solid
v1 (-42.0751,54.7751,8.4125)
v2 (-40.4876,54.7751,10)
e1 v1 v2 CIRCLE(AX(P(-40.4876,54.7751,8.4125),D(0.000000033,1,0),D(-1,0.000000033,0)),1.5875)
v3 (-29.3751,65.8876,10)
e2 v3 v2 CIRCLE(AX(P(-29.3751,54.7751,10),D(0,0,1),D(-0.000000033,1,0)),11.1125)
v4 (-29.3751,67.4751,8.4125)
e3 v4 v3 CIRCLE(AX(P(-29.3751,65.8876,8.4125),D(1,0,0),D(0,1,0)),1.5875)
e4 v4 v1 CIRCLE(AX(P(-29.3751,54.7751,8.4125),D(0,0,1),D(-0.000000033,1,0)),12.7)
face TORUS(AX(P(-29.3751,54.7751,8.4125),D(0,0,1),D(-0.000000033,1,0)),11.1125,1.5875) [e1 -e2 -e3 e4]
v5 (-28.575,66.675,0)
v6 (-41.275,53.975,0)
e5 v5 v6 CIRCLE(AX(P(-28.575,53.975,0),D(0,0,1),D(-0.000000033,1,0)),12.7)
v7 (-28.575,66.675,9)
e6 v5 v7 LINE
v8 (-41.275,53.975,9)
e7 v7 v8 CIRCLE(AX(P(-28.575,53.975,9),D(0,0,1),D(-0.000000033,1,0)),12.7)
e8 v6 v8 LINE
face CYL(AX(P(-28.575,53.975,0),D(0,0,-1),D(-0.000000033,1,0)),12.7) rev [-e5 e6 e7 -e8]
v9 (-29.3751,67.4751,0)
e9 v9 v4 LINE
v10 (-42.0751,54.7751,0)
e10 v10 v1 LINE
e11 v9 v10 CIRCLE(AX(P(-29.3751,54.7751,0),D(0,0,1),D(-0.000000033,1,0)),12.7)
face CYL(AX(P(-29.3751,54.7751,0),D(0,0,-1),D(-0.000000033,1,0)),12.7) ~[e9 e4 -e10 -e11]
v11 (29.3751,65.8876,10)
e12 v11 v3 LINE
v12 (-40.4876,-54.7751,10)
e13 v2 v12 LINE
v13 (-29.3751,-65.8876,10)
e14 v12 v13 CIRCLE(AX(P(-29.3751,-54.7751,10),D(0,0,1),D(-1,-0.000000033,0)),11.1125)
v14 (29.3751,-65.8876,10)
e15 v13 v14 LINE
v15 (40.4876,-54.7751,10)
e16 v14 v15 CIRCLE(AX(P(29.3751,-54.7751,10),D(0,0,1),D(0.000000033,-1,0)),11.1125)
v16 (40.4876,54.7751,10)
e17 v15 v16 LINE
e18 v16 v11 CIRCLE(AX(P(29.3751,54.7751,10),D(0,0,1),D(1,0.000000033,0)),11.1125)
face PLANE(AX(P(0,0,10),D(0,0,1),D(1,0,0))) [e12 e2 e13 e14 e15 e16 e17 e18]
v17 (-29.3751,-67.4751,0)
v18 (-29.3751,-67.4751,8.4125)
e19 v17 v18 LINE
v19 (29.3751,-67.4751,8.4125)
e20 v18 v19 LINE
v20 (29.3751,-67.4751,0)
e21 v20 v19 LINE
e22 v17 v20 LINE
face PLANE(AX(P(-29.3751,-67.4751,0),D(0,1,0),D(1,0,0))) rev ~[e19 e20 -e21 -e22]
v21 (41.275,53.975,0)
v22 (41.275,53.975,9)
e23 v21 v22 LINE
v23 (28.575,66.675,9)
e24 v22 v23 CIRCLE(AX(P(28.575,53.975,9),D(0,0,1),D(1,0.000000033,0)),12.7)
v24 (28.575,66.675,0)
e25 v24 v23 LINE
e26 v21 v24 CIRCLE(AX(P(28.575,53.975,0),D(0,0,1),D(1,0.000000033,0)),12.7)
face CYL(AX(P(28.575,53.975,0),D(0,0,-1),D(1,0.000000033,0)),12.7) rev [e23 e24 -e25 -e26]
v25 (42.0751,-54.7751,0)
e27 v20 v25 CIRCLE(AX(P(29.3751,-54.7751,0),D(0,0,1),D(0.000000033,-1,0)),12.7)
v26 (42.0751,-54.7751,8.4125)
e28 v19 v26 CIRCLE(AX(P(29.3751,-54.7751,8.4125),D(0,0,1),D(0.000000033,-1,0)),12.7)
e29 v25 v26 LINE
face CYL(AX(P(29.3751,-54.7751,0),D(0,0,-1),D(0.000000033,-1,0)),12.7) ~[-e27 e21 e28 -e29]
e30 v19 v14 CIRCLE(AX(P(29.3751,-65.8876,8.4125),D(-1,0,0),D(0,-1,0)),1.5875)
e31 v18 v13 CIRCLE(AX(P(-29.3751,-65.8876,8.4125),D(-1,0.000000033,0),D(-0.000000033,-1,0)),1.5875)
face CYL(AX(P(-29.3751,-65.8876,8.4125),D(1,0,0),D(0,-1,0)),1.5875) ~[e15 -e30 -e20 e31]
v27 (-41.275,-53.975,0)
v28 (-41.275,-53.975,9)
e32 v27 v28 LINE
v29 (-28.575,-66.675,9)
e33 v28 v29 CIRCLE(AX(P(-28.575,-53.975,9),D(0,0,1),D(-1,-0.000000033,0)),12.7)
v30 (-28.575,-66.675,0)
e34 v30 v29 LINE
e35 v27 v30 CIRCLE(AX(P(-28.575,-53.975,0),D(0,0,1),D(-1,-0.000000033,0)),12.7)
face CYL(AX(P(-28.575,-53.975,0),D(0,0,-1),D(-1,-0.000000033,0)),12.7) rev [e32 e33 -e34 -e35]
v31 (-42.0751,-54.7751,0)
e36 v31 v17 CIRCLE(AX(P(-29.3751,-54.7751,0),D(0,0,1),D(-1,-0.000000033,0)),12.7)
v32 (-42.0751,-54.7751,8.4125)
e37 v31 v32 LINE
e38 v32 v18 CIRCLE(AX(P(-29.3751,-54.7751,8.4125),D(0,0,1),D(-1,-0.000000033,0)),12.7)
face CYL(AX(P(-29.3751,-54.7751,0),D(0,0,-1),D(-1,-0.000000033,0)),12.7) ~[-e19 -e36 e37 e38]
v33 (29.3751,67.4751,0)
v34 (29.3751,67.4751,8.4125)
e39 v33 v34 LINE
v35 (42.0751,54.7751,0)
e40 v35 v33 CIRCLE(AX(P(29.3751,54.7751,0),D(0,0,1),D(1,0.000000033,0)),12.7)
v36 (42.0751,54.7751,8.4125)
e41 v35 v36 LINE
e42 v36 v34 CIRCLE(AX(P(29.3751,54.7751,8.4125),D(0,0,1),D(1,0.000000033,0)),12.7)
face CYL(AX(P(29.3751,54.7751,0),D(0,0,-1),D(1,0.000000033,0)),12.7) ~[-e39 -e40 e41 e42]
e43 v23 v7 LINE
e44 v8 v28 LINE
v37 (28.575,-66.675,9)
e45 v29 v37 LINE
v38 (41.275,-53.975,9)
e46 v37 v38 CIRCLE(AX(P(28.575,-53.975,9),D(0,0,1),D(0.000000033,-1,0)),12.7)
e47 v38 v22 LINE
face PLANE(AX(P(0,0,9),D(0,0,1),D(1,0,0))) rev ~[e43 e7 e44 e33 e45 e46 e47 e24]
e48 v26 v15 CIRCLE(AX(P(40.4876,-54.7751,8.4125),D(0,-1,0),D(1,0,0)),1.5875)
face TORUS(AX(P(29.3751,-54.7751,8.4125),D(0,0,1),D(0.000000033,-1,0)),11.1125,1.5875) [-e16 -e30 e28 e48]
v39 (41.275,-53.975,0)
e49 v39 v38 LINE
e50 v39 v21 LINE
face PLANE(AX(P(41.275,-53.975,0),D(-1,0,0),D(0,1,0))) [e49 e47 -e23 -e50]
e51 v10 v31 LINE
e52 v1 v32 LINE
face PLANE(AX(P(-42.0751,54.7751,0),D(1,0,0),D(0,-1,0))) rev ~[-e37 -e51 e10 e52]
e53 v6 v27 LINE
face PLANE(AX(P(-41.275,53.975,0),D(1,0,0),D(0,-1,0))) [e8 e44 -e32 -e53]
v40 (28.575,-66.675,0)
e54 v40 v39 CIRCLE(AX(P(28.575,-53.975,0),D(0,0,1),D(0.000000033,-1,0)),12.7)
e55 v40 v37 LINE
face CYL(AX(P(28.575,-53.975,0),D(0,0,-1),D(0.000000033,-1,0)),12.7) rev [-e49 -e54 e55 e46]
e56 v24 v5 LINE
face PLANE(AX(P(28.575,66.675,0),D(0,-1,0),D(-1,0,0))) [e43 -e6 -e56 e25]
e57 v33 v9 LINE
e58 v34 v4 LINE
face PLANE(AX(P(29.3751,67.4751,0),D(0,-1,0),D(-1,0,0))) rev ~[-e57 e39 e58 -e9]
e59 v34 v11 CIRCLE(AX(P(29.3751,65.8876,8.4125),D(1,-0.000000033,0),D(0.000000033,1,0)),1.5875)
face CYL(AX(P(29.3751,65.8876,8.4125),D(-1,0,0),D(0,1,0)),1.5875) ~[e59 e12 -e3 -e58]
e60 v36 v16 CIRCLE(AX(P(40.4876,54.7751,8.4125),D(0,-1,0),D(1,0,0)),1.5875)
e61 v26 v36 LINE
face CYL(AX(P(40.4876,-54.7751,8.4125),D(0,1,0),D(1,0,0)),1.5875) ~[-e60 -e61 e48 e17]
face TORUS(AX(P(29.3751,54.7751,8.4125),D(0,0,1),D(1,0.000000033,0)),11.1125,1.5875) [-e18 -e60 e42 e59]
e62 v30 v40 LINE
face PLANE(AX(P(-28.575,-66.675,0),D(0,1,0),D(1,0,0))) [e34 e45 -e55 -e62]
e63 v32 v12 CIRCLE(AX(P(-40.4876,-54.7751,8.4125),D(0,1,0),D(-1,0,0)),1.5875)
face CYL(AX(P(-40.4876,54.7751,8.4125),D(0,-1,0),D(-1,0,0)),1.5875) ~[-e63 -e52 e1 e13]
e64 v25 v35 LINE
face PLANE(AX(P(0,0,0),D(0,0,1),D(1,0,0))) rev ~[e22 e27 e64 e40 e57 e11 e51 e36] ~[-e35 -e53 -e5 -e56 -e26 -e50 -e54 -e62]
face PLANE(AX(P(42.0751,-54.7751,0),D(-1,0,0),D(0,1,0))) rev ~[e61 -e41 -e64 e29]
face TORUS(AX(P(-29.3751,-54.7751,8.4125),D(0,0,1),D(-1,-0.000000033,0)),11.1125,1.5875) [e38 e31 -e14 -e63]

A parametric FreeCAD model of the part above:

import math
import FreeCAD as App
import Part
import Sketcher

V = App.Vector
Q = App.Units.Quantity


def edges_at(feature, points):
    """Names of the edges that pass closest to the given points."""
    edges = feature.Shape.Edges
    near = lambda p: min(range(len(edges)), key=lambda i: edges[i].distToShape(Part.Vertex(*p))[0])
    return sorted({f"Edge{near(p) + 1}" for p in points})

doc = App.newDocument("Part")
params = doc.addObject("Spreadsheet::Sheet", "Params")
for row, (alias, value) in enumerate([
    ("sketch1_radius", "0.5 in"),
    ("sketch1_width", "2.313 in"),
    ("sketch1_height", "4.313 in"),
    ("pad1_length", "10 mm"),
    ("fillet_radius", "0.0625 in"),
    ("sketch2_radius", "0.5 in"),
    ("sketch2_width", "2.25 in"),
    ("sketch2_height", "4.25 in"),
    ("pocket1_length", "9 mm"),
], start=1):
    params.set(f"A{row}", alias)
    params.set(f"B{row}", "=" + value)
    params.setAlias(f"B{row}", alias)

body = doc.addObject("PartDesign::Body", "Body")

sketch1 = body.newObject("Sketcher::SketchObject", "Sketch")
sketch1.AttachmentSupport = (doc.getObject("XY_Plane"), [""])
sketch1.MapMode = "FlatFace"
sketch1.addGeometry([
    Part.ArcOfCircle(Part.Circle(V(29.3751, 54.7751, 0), V(0, 0, 1), 12.7), math.radians(0.000002), math.radians(89.999998)),
    Part.LineSegment(V(29.3751, 67.4751, 0), V(-29.3751, 67.4751, 0)),
    Part.ArcOfCircle(Part.Circle(V(-29.3751, 54.7751, 0), V(0, 0, 1), 12.7), math.radians(90.000002), math.radians(179.999998)),
    Part.LineSegment(V(-42.0751, 54.7751, 0), V(-42.0751, -54.7751, 0)),
    Part.ArcOfCircle(Part.Circle(V(-29.3751, -54.7751, 0), V(0, 0, 1), 12.7), math.radians(-179.999998), math.radians(-90.000002)),
    Part.LineSegment(V(-29.3751, -67.4751, 0), V(29.3751, -67.4751, 0)),
    Part.ArcOfCircle(Part.Circle(V(29.3751, -54.7751, 0), V(0, 0, 1), 12.7), math.radians(-89.999998), math.radians(-0.000002)),
    Part.LineSegment(V(42.0751, -54.7751, 0), V(42.0751, 54.7751, 0)),
], False)
sketch1.addConstraint([
    Sketcher.Constraint("Tangent", 0, 2, 1, 1),
    Sketcher.Constraint("Tangent", 1, 2, 2, 1),
    Sketcher.Constraint("Tangent", 2, 2, 3, 1),
    Sketcher.Constraint("Tangent", 3, 2, 4, 1),
    Sketcher.Constraint("Tangent", 4, 2, 5, 1),
    Sketcher.Constraint("Tangent", 5, 2, 6, 1),
    Sketcher.Constraint("Tangent", 6, 2, 7, 1),
    Sketcher.Constraint("Tangent", 7, 2, 0, 1),
    Sketcher.Constraint("Horizontal", 1),
    Sketcher.Constraint("Vertical", 3),
    Sketcher.Constraint("Horizontal", 5),
    Sketcher.Constraint("Vertical", 7),
    Sketcher.Constraint("Equal", 0, 2),
    Sketcher.Constraint("Equal", 2, 4),
    Sketcher.Constraint("Equal", 4, 6),
    Sketcher.Constraint("Symmetric", 0, 3, 4, 3, -1, 1),
    Sketcher.Constraint("Radius", 0, Q("0.5 in")),
    Sketcher.Constraint("DistanceX", 1, 2, 1, 1, Q("2.313 in")),
    Sketcher.Constraint("DistanceY", 3, 2, 3, 1, Q("4.313 in")),
])
sketch1.setExpression("Constraints[16]", "Params.sketch1_radius")
sketch1.setExpression("Constraints[17]", "Params.sketch1_width")
sketch1.setExpression("Constraints[18]", "Params.sketch1_height")
pad1 = body.newObject("PartDesign::Pad", "Pad")
pad1.Profile = sketch1
pad1.setExpression("Length", "Params.pad1_length")
doc.recompute()

fillet = body.newObject("PartDesign::Fillet", "Fillet")
fillet.Base = (pad1, edges_at(pad1, [
    (42.075, 0, 10),
    (38.355, -63.755, 10),
    (0, -67.475, 10),
    (-38.355, -63.755, 10),
    (-42.075, 0, 10),
    (-38.355, 63.755, 10),
    (0, 67.475, 10),
    (38.355, 63.755, 10),
]))
fillet.setExpression("Radius", "Params.fillet_radius")

sketch2 = body.newObject("Sketcher::SketchObject", "Sketch001")
sketch2.AttachmentSupport = (doc.getObject("XY_Plane"), [""])
sketch2.MapMode = "FlatFace"
sketch2.addGeometry([
    Part.LineSegment(V(-28.575, -66.675, 0), V(28.575, -66.675, 0)),
    Part.ArcOfCircle(Part.Circle(V(28.575, -53.975, 0), V(0, 0, 1), 12.7), math.radians(-89.999998), math.radians(-0.000002)),
    Part.LineSegment(V(41.275, -53.975, 0), V(41.275, 53.975, 0)),
    Part.ArcOfCircle(Part.Circle(V(28.575, 53.975, 0), V(0, 0, 1), 12.7), math.radians(0.000002), math.radians(89.999998)),
    Part.LineSegment(V(28.575, 66.675, 0), V(-28.575, 66.675, 0)),
    Part.ArcOfCircle(Part.Circle(V(-28.575, 53.975, 0), V(0, 0, 1), 12.7), math.radians(90.000002), math.radians(179.999998)),
    Part.LineSegment(V(-41.275, 53.975, 0), V(-41.275, -53.975, 0)),
    Part.ArcOfCircle(Part.Circle(V(-28.575, -53.975, 0), V(0, 0, 1), 12.7), math.radians(-179.999998), math.radians(-90.000002)),
], False)
sketch2.addConstraint([
    Sketcher.Constraint("Tangent", 0, 2, 1, 1),
    Sketcher.Constraint("Tangent", 1, 2, 2, 1),
    Sketcher.Constraint("Tangent", 2, 2, 3, 1),
    Sketcher.Constraint("Tangent", 3, 2, 4, 1),
    Sketcher.Constraint("Tangent", 4, 2, 5, 1),
    Sketcher.Constraint("Tangent", 5, 2, 6, 1),
    Sketcher.Constraint("Tangent", 6, 2, 7, 1),
    Sketcher.Constraint("Tangent", 7, 2, 0, 1),
    Sketcher.Constraint("Horizontal", 0),
    Sketcher.Constraint("Vertical", 2),
    Sketcher.Constraint("Horizontal", 4),
    Sketcher.Constraint("Vertical", 6),
    Sketcher.Constraint("Equal", 1, 3),
    Sketcher.Constraint("Equal", 3, 5),
    Sketcher.Constraint("Equal", 5, 7),
    Sketcher.Constraint("Symmetric", 1, 3, 5, 3, -1, 1),
    Sketcher.Constraint("Radius", 1, Q("0.5 in")),
    Sketcher.Constraint("DistanceX", 0, 1, 0, 2, Q("2.25 in")),
    Sketcher.Constraint("DistanceY", 2, 1, 2, 2, Q("4.25 in")),
])
sketch2.setExpression("Constraints[16]", "Params.sketch2_radius")
sketch2.setExpression("Constraints[17]", "Params.sketch2_width")
sketch2.setExpression("Constraints[18]", "Params.sketch2_height")
pocket1 = body.newObject("PartDesign::Pocket", "Pocket")
pocket1.Profile = sketch2
pocket1.setExpression("Length", "Params.pocket1_length")
pocket1.Reversed = True

doc.recompute()
